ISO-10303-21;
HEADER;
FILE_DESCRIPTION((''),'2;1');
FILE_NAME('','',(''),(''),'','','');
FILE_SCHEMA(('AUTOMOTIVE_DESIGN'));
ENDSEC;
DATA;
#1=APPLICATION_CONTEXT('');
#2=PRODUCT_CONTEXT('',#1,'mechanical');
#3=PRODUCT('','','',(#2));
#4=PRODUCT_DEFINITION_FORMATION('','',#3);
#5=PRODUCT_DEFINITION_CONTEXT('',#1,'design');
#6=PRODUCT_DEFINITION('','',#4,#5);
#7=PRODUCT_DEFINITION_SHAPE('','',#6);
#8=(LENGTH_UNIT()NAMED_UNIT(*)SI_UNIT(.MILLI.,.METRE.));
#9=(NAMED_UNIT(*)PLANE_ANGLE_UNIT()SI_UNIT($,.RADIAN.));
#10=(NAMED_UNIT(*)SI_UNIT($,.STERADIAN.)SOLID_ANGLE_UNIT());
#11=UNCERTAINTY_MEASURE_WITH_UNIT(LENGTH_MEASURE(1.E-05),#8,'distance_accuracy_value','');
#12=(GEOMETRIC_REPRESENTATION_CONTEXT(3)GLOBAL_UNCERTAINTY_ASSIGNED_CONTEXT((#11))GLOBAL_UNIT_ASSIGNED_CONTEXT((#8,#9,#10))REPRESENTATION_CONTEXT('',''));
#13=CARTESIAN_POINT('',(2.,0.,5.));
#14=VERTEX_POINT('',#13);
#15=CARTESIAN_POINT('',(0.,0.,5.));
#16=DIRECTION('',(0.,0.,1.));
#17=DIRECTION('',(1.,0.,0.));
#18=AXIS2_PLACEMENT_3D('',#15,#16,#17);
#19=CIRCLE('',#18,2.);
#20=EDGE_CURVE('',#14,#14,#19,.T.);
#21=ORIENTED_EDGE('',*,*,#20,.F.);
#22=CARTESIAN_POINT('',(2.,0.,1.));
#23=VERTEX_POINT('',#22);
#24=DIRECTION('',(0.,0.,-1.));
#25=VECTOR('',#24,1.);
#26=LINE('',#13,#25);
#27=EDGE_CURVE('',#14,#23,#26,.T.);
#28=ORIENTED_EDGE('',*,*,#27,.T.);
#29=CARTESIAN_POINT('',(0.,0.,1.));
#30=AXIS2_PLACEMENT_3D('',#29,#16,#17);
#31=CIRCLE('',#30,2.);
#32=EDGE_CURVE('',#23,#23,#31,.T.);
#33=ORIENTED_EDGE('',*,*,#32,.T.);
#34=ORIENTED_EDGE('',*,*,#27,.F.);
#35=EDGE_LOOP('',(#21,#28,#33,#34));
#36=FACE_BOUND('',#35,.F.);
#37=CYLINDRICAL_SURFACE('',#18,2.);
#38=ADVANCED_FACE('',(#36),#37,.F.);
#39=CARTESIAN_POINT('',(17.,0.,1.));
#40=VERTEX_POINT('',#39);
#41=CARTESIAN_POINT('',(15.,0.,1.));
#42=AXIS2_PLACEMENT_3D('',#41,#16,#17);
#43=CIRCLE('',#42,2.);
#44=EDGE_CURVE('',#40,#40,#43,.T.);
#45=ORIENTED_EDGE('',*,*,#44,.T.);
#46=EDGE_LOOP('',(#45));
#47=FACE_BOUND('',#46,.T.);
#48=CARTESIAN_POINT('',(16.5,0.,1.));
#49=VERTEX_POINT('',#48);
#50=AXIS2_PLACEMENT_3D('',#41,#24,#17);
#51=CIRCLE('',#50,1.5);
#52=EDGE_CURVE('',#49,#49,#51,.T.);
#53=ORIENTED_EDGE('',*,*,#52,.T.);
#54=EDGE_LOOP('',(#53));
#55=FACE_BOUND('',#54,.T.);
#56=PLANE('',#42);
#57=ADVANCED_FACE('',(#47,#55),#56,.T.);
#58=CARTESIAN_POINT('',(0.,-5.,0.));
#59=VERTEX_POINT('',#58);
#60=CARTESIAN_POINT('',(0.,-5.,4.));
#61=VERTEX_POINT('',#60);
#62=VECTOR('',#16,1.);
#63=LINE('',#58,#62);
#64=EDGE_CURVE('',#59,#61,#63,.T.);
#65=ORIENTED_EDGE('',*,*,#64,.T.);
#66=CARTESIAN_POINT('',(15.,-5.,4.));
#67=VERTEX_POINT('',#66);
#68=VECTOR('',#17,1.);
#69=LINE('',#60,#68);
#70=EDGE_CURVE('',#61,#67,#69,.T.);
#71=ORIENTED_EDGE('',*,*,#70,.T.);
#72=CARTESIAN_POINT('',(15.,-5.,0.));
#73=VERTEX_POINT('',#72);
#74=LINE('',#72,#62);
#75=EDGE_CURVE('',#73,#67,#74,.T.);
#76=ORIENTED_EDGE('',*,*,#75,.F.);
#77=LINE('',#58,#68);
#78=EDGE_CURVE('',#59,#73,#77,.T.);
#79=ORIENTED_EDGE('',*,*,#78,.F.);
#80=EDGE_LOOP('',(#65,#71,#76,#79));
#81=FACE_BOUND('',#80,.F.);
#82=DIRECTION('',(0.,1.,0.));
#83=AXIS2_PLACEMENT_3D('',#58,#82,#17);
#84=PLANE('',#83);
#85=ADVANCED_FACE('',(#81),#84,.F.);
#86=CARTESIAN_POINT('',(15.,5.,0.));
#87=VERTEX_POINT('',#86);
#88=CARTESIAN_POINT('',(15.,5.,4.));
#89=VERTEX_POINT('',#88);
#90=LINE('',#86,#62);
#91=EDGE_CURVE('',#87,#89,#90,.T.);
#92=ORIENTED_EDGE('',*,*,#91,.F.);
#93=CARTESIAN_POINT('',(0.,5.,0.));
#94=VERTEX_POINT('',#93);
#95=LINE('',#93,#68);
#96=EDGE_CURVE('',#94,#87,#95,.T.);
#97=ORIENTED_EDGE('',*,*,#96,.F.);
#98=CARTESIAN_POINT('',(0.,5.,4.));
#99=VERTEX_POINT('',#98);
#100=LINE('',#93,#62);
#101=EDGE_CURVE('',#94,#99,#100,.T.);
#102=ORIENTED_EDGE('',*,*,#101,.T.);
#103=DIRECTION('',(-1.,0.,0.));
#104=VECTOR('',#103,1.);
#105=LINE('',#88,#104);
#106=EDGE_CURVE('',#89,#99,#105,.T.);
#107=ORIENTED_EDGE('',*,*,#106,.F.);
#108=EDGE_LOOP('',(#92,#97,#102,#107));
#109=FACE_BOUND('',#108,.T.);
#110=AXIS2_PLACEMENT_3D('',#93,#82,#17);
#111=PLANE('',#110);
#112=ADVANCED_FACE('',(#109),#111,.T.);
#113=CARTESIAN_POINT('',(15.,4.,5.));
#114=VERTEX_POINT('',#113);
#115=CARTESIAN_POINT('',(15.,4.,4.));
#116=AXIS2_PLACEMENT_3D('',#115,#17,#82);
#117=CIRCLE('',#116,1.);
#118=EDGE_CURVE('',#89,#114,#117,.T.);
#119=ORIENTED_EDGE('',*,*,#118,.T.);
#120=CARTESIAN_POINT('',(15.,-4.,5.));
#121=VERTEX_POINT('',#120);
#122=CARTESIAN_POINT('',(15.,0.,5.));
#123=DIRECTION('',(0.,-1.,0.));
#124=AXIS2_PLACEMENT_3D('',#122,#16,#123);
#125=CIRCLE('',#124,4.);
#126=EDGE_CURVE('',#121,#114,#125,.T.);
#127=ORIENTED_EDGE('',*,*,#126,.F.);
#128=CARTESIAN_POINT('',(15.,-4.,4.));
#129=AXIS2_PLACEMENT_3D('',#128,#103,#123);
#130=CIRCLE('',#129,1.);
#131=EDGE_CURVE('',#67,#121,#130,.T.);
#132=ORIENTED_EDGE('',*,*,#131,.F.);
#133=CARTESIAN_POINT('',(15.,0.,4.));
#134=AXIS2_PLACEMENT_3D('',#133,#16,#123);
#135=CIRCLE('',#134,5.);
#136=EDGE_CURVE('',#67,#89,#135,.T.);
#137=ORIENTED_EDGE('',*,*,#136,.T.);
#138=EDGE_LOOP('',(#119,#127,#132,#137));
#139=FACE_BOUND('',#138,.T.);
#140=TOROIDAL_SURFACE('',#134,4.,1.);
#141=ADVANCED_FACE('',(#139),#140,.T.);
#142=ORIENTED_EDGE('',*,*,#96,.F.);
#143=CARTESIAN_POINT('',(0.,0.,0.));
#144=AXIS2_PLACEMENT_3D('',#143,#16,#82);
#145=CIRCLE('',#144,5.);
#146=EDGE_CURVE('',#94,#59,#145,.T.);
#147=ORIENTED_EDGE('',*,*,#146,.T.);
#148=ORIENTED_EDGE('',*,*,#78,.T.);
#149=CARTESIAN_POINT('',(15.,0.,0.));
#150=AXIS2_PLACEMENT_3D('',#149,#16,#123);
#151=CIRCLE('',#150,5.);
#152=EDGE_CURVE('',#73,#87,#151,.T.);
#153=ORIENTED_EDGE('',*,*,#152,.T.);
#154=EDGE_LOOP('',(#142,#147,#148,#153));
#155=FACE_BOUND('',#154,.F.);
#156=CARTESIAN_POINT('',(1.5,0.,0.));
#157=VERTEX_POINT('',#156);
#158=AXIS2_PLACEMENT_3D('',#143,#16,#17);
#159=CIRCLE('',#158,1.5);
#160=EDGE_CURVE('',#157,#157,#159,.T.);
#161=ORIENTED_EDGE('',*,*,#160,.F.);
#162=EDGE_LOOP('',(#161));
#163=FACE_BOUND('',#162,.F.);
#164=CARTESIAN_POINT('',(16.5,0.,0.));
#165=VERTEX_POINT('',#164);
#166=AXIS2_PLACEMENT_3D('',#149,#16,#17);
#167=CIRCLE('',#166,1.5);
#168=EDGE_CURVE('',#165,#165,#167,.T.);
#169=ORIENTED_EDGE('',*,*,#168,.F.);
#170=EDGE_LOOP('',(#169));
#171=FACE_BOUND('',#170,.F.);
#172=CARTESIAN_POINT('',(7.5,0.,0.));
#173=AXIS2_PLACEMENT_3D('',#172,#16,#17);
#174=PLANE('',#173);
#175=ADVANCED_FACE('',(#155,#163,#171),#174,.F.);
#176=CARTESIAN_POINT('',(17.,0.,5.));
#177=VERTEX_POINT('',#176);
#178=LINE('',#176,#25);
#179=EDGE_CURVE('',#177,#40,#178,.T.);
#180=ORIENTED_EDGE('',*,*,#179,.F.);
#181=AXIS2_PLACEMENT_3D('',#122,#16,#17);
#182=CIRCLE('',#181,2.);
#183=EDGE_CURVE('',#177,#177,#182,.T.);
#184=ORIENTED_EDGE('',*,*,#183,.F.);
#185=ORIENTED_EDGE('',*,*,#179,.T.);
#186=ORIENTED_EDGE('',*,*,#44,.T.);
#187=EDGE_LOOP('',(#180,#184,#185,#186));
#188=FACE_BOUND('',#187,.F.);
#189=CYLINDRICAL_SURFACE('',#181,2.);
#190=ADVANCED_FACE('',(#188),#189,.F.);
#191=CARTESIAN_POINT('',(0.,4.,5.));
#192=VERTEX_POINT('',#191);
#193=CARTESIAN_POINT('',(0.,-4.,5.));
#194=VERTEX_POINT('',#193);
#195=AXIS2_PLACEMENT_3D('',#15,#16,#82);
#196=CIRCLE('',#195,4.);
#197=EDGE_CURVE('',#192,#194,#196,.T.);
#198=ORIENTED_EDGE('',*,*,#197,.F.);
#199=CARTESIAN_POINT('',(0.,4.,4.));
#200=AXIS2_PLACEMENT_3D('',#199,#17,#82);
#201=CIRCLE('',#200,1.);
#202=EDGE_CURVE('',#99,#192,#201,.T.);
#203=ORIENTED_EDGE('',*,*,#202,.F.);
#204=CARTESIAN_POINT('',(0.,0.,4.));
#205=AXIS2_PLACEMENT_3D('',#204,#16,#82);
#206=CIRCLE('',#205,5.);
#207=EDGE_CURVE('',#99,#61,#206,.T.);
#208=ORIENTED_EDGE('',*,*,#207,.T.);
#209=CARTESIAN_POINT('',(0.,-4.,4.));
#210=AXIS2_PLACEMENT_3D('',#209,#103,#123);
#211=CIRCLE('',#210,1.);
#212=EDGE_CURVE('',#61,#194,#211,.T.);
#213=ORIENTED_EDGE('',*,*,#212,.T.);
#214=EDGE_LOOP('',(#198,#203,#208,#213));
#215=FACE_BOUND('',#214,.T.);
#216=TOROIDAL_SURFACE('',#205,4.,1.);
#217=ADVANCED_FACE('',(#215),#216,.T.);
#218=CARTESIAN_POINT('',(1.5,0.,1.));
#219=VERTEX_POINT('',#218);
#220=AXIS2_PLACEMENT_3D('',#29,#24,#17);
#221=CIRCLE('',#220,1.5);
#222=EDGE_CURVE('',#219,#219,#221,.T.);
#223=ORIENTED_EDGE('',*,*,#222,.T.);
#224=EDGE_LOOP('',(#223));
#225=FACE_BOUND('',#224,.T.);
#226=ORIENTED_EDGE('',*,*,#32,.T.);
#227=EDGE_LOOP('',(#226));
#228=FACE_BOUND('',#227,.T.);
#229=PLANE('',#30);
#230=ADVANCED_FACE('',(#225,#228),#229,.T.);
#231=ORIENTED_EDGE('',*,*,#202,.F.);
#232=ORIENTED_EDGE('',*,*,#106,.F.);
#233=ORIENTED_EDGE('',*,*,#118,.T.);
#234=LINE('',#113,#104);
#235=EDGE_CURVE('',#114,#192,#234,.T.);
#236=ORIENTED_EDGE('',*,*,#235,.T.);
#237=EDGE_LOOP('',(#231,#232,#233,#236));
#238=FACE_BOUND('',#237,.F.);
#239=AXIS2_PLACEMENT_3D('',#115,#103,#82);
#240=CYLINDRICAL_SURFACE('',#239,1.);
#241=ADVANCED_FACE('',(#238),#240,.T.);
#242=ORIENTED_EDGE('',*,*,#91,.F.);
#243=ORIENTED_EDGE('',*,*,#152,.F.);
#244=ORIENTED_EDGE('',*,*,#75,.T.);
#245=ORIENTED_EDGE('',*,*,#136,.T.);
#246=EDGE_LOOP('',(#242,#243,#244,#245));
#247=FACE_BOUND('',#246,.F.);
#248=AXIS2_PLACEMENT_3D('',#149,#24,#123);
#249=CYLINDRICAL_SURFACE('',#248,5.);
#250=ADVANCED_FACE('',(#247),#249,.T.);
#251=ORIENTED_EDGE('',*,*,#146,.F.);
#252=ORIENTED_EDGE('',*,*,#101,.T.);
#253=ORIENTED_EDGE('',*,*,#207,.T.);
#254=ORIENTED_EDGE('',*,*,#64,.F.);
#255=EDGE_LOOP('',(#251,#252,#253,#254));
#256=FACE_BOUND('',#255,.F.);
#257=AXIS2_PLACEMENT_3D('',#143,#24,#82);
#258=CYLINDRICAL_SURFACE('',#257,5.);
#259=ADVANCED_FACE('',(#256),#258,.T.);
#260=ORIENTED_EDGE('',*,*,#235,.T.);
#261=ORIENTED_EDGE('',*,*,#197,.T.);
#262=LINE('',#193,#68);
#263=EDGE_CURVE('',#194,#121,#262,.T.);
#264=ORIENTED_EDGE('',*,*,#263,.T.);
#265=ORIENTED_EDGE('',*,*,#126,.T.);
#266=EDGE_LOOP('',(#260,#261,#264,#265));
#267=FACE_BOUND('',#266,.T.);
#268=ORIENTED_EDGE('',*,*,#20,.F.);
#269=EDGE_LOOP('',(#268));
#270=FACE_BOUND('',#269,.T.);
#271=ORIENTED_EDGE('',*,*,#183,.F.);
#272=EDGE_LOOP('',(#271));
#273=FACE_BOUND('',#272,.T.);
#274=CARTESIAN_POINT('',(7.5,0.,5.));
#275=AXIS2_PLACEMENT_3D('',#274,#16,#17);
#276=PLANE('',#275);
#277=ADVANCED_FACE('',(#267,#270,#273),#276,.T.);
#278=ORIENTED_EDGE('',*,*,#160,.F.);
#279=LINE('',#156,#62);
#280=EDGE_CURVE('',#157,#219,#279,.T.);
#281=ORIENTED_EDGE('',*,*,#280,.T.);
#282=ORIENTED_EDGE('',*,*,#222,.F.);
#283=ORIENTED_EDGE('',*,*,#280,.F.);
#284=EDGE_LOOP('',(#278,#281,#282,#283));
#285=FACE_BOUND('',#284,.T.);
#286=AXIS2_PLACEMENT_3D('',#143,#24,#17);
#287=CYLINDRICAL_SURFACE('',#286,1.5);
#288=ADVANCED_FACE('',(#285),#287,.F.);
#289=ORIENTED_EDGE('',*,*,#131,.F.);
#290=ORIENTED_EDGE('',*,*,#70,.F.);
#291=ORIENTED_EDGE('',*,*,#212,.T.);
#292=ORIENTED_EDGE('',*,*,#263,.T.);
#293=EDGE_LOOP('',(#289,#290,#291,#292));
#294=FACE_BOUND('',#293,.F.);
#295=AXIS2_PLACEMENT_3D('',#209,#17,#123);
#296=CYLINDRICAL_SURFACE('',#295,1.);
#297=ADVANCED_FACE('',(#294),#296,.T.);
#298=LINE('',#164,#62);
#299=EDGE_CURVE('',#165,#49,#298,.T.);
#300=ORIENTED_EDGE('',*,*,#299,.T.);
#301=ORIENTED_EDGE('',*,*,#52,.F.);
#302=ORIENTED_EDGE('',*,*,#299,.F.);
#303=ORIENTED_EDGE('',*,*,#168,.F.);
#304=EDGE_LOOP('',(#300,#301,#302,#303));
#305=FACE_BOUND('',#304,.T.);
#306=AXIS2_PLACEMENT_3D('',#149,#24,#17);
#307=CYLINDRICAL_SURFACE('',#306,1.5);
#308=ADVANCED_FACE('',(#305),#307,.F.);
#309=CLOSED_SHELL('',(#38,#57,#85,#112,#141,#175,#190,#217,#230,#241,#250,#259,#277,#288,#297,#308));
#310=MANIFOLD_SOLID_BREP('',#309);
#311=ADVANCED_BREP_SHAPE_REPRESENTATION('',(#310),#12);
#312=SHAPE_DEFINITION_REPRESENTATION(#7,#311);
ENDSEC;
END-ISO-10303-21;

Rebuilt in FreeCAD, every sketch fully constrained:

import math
import FreeCAD as App
import Part
import Sketcher
Q = App.Units.Quantity


def edges_at(feature, points):
    """Names of the edges that pass closest to the given points."""
    edges = feature.Shape.Edges
    near = lambda p: min(range(len(edges)), key=lambda i: edges[i].distToShape(Part.Vertex(*p))[0])
    return sorted({f"Edge{near(p) + 1}" for p in points})

doc = App.newDocument("Part")
body = doc.addObject("PartDesign::Body", "Body")

sketch1 = body.newObject("Sketcher::SketchObject", "Sketch")
sketch1.AttachmentSupport = (doc.getObject("XY_Plane"), [""])
sketch1.MapMode = "FlatFace"
sketch1.addGeometry([
    Part.ArcOfCircle(Part.Circle(App.Vector(0, 0, 0), App.Vector(0, 0, 1), 5), math.radians(90), math.radians(270)),
    Part.LineSegment(App.Vector(0, -5, 0), App.Vector(15, -5, 0)),
    Part.ArcOfCircle(Part.Circle(App.Vector(15, 0, 0), App.Vector(0, 0, 1), 5), math.radians(-90), math.radians(90)),
    Part.LineSegment(App.Vector(15, 5, 0), App.Vector(0, 5, 0)),
    Part.Circle(App.Vector(0, 0, 0), App.Vector(0, 0, 1), 1.5),
    Part.Circle(App.Vector(15, 0, 0), App.Vector(0, 0, 1), 1.5),
], False)
sketch1.addConstraint([
    Sketcher.Constraint("Tangent", 0, 2, 1, 1),
    Sketcher.Constraint("Tangent", 1, 2, 2, 1),
    Sketcher.Constraint("Tangent", 2, 2, 3, 1),
    Sketcher.Constraint("Tangent", 3, 2, 0, 1),
    Sketcher.Constraint("Horizontal", 1),
    Sketcher.Constraint("Horizontal", 3),
    Sketcher.Constraint("Coincident", 0, 3, -1, 1),
    Sketcher.Constraint("Coincident", 4, 3, -1, 1),
    Sketcher.Constraint("Coincident", 5, 3, 2, 3),
    Sketcher.Constraint("Equal", 4, 5),
    Sketcher.Constraint("Diameter", 4, Q("3 mm")),
    Sketcher.Constraint("Radius", 0, Q("5 mm")),
    Sketcher.Constraint("DistanceX", 1, 1, 1, 2, Q("15 mm")),
])
pad1 = body.newObject("PartDesign::Pad", "Pad")
pad1.Profile = sketch1
pad1.Length = 5

sketch2 = body.newObject("Sketcher::SketchObject", "Sketch001")
sketch2.AttachmentSupport = (doc.getObject("XY_Plane"), [""])
sketch2.MapMode = "FlatFace"
sketch2.AttachmentOffset = App.Placement(App.Vector(0, 0, 5), App.Rotation())
sketch2.addGeometry([
    Part.Circle(App.Vector(0, 0, 0), App.Vector(0, 0, 1), 2),
    Part.Circle(App.Vector(15, 0, 0), App.Vector(0, 0, 1), 2),
], False)
sketch2.addConstraint([
    Sketcher.Constraint("Coincident", 0, 3, -1, 1),
    Sketcher.Constraint("Equal", 0, 1),
    Sketcher.Constraint("PointOnObject", 1, 3, -1),
    Sketcher.Constraint("Diameter", 0, Q("4 mm")),
    Sketcher.Constraint("DistanceX", -1, 1, 1, 3, Q("15 mm")),
])
pocket1 = body.newObject("PartDesign::Pocket", "Pocket")
pocket1.Profile = sketch2
pocket1.Length = 4
doc.recompute()

fillet = body.newObject("PartDesign::Fillet", "Fillet")
fillet.Base = (pocket1, edges_at(pocket1, [(7.5, -5, 5)]))
fillet.Radius = 1

doc.recompute()
